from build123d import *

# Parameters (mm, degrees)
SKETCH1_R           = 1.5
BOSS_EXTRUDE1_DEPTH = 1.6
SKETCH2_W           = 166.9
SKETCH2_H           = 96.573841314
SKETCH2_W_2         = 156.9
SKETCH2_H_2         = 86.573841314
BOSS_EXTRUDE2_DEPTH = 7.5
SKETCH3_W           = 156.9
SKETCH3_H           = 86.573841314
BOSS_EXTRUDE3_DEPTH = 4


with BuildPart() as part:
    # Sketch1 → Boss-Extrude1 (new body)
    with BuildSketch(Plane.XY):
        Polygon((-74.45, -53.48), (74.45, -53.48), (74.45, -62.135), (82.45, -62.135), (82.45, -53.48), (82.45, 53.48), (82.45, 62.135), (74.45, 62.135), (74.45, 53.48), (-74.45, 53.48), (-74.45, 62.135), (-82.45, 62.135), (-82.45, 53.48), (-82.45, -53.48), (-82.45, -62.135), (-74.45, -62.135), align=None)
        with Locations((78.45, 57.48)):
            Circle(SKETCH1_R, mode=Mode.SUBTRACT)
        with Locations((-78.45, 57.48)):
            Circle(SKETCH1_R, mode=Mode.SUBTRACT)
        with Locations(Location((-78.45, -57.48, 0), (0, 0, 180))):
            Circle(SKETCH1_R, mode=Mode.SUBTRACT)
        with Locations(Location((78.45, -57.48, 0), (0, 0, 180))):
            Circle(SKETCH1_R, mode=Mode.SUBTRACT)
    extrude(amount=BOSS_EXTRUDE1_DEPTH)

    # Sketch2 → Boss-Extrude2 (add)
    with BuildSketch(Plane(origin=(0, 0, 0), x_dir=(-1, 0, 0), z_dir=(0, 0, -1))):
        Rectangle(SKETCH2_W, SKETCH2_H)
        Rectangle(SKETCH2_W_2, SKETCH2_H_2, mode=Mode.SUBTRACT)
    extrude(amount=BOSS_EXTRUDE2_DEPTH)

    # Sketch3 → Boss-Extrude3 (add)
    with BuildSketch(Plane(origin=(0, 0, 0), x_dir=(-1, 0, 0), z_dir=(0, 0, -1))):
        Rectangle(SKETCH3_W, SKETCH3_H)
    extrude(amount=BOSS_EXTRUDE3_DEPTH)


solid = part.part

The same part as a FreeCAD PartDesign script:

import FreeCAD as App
import Part
import Sketcher
Q = App.Units.Quantity


def add_polygon(sketch, points):
    """Adds a closed chain of lines whose ends are joined by coincident constraints."""
    first, n = sketch.GeometryCount, len(points)
    for a, b in zip(points, points[1:] + points[:1]):
        sketch.addGeometry(Part.LineSegment(App.Vector(*a, 0), App.Vector(*b, 0)), False)
    for i in range(n):
        sketch.addConstraint(Sketcher.Constraint("Coincident", first + i, 2, first + (i + 1) % n, 1))

doc = App.newDocument("Part")
body = doc.addObject("PartDesign::Body", "Body")

# Sketch on XY plane
sketch1 = body.newObject("Sketcher::SketchObject", "Sketch")
sketch1.AttachmentSupport = (doc.getObject("XY_Plane"), [""])
sketch1.MapMode = "FlatFace"
add_polygon(sketch1, [(-74.5, -53.5), (74.5, -53.5), (74.5, -62.1), (82.5, -62.1), (82.5, 62.1), (74.5, 62.1), (74.5, 53.5), (-74.5, 53.5), (-74.5, 62.1), (-82.5, 62.1), (-82.5, -62.1), (-74.5, -62.1)])  # lines 0-11
sketch1.addGeometry(Part.Circle(App.Vector(-78.5, -57.5, 0), App.Vector(0, 0, 1), 1.5), False)  # 12
sketch1.addGeometry(Part.Circle(App.Vector(78.5, -57.5, 0), App.Vector(0, 0, 1), 1.5), False)  # 13
sketch1.addGeometry(Part.Circle(App.Vector(-78.5, 57.5, 0), App.Vector(0, 0, 1), 1.5), False)  # 14
sketch1.addGeometry(Part.Circle(App.Vector(78.5, 57.5, 0), App.Vector(0, 0, 1), 1.5), False)  # 15
sketch1.addConstraint(Sketcher.Constraint("Horizontal", 0))
sketch1.addConstraint(Sketcher.Constraint("Vertical", 1))
sketch1.addConstraint(Sketcher.Constraint("Horizontal", 2))
sketch1.addConstraint(Sketcher.Constraint("Vertical", 3))
sketch1.addConstraint(Sketcher.Constraint("Horizontal", 4))
sketch1.addConstraint(Sketcher.Constraint("Vertical", 5))
sketch1.addConstraint(Sketcher.Constraint("Horizontal", 6))
sketch1.addConstraint(Sketcher.Constraint("Vertical", 7))
sketch1.addConstraint(Sketcher.Constraint("Horizontal", 8))
sketch1.addConstraint(Sketcher.Constraint("Vertical", 9))
sketch1.addConstraint(Sketcher.Constraint("Horizontal", 10))
sketch1.addConstraint(Sketcher.Constraint("Vertical", 11))
sketch1.addConstraint(Sketcher.Constraint("Equal", 12, 13))
sketch1.addConstraint(Sketcher.Constraint("Equal", 13, 14))
sketch1.addConstraint(Sketcher.Constraint("Equal", 14, 15))
sketch1.addConstraint(Sketcher.Constraint("Symmetric", 13, 3, 14, 3, -1, 1))
sketch1.addConstraint(Sketcher.Constraint("Symmetric", 12, 3, 15, 3, -1, 1))
sketch1.addConstraint(Sketcher.Constraint("Symmetric", 0, 2, 6, 2, -1, 1))
sketch1.addConstraint(Sketcher.Constraint("Symmetric", 2, 2, 8, 2, -1, 1))
sketch1.addConstraint(Sketcher.Constraint("Symmetric", 4, 2, 10, 2, -1, 1))
sketch1.addConstraint(Sketcher.Constraint("Symmetric", 12, 3, 13, 3, -2))
sketch1.addConstraint(Sketcher.Constraint("Symmetric", 4, 2, 7, 2, -2))
sketch1.addConstraint(Sketcher.Constraint("Diameter", 12, Q("3 mm")))
sketch1.addConstraint(Sketcher.Constraint("DistanceX", 2, 1, 2, 2, Q("8 mm")))
sketch1.addConstraint(Sketcher.Constraint("DistanceX", 0, 1, 0, 2, Q("148.9 mm")))
sketch1.addConstraint(Sketcher.Constraint("DistanceX", 0, 2, 13, 3, Q("4 mm")))
sketch1.addConstraint(Sketcher.Constraint("DistanceY", 13, 3, 0, 2, Q("4 mm")))
sketch1.addConstraint(Sketcher.Constraint("DistanceY", 3, 1, 3, 2, Q("124.27 mm")))
sketch1.addConstraint(Sketcher.Constraint("DistanceY", 1, 2, 1, 1, Q("8.655 mm")))
pad1 = body.newObject("PartDesign::Pad", "Pad")
pad1.Profile = sketch1
pad1.Length = 1.6

# Sketch on XY plane
sketch2 = body.newObject("Sketcher::SketchObject", "Sketch001")
sketch2.AttachmentSupport = (doc.getObject("XY_Plane"), [""])
sketch2.MapMode = "FlatFace"
add_polygon(sketch2, [(83, 48), (83, -48), (-83, -48), (-83, 48)])  # lines 0-3
add_polygon(sketch2, [(-78, -43), (78, -43), (78, 43), (-78, 43)])  # lines 4-7
sketch2.addConstraint(Sketcher.Constraint("Vertical", 0))
sketch2.addConstraint(Sketcher.Constraint("Horizontal", 1))
sketch2.addConstraint(Sketcher.Constraint("Vertical", 2))
sketch2.addConstraint(Sketcher.Constraint("Horizontal", 3))
sketch2.addConstraint(Sketcher.Constraint("Horizontal", 4))
sketch2.addConstraint(Sketcher.Constraint("Vertical", 5))
sketch2.addConstraint(Sketcher.Constraint("Horizontal", 6))
sketch2.addConstraint(Sketcher.Constraint("Vertical", 7))
sketch2.addConstraint(Sketcher.Constraint("Symmetric", 0, 2, 2, 2, -1, 1))
sketch2.addConstraint(Sketcher.Constraint("Symmetric", 4, 2, 6, 2, -1, 1))
sketch2.addConstraint(Sketcher.Constraint("DistanceX", 1, 2, 1, 1, Q("166.9 mm")))
sketch2.addConstraint(Sketcher.Constraint("DistanceX", 4, 1, 4, 2, Q("156.9 mm")))
sketch2.addConstraint(Sketcher.Constraint("DistanceY", 0, 2, 4, 2, Q("5 mm")))
sketch2.addConstraint(Sketcher.Constraint("DistanceY", 0, 2, 0, 1, Q("96.573841 mm")))
pad2 = body.newObject("PartDesign::Pad", "Pad001")
pad2.Profile = sketch2
pad2.Length = 7.5
pad2.Reversed = True

# Sketch on XY plane
sketch3 = body.newObject("Sketcher::SketchObject", "Sketch002")
sketch3.AttachmentSupport = (doc.getObject("XY_Plane"), [""])
sketch3.MapMode = "FlatFace"
add_polygon(sketch3, [(78, 43), (78, -43), (-78, -43), (-78, 43)])  # lines 0-3
sketch3.addConstraint(Sketcher.Constraint("Vertical", 0))
sketch3.addConstraint(Sketcher.Constraint("Horizontal", 1))
sketch3.addConstraint(Sketcher.Constraint("Vertical", 2))
sketch3.addConstraint(Sketcher.Constraint("Horizontal", 3))
sketch3.addConstraint(Sketcher.Constraint("Symmetric", 0, 2, 2, 2, -1, 1))
sketch3.addConstraint(Sketcher.Constraint("DistanceX", 1, 2, 1, 1, Q("156.9 mm")))
sketch3.addConstraint(Sketcher.Constraint("DistanceY", 0, 2, 0, 1, Q("86.573841 mm")))
pad3 = body.newObject("PartDesign::Pad", "Pad002")
pad3.Profile = sketch3
pad3.Length = 4
pad3.Reversed = True

doc.recompute()
